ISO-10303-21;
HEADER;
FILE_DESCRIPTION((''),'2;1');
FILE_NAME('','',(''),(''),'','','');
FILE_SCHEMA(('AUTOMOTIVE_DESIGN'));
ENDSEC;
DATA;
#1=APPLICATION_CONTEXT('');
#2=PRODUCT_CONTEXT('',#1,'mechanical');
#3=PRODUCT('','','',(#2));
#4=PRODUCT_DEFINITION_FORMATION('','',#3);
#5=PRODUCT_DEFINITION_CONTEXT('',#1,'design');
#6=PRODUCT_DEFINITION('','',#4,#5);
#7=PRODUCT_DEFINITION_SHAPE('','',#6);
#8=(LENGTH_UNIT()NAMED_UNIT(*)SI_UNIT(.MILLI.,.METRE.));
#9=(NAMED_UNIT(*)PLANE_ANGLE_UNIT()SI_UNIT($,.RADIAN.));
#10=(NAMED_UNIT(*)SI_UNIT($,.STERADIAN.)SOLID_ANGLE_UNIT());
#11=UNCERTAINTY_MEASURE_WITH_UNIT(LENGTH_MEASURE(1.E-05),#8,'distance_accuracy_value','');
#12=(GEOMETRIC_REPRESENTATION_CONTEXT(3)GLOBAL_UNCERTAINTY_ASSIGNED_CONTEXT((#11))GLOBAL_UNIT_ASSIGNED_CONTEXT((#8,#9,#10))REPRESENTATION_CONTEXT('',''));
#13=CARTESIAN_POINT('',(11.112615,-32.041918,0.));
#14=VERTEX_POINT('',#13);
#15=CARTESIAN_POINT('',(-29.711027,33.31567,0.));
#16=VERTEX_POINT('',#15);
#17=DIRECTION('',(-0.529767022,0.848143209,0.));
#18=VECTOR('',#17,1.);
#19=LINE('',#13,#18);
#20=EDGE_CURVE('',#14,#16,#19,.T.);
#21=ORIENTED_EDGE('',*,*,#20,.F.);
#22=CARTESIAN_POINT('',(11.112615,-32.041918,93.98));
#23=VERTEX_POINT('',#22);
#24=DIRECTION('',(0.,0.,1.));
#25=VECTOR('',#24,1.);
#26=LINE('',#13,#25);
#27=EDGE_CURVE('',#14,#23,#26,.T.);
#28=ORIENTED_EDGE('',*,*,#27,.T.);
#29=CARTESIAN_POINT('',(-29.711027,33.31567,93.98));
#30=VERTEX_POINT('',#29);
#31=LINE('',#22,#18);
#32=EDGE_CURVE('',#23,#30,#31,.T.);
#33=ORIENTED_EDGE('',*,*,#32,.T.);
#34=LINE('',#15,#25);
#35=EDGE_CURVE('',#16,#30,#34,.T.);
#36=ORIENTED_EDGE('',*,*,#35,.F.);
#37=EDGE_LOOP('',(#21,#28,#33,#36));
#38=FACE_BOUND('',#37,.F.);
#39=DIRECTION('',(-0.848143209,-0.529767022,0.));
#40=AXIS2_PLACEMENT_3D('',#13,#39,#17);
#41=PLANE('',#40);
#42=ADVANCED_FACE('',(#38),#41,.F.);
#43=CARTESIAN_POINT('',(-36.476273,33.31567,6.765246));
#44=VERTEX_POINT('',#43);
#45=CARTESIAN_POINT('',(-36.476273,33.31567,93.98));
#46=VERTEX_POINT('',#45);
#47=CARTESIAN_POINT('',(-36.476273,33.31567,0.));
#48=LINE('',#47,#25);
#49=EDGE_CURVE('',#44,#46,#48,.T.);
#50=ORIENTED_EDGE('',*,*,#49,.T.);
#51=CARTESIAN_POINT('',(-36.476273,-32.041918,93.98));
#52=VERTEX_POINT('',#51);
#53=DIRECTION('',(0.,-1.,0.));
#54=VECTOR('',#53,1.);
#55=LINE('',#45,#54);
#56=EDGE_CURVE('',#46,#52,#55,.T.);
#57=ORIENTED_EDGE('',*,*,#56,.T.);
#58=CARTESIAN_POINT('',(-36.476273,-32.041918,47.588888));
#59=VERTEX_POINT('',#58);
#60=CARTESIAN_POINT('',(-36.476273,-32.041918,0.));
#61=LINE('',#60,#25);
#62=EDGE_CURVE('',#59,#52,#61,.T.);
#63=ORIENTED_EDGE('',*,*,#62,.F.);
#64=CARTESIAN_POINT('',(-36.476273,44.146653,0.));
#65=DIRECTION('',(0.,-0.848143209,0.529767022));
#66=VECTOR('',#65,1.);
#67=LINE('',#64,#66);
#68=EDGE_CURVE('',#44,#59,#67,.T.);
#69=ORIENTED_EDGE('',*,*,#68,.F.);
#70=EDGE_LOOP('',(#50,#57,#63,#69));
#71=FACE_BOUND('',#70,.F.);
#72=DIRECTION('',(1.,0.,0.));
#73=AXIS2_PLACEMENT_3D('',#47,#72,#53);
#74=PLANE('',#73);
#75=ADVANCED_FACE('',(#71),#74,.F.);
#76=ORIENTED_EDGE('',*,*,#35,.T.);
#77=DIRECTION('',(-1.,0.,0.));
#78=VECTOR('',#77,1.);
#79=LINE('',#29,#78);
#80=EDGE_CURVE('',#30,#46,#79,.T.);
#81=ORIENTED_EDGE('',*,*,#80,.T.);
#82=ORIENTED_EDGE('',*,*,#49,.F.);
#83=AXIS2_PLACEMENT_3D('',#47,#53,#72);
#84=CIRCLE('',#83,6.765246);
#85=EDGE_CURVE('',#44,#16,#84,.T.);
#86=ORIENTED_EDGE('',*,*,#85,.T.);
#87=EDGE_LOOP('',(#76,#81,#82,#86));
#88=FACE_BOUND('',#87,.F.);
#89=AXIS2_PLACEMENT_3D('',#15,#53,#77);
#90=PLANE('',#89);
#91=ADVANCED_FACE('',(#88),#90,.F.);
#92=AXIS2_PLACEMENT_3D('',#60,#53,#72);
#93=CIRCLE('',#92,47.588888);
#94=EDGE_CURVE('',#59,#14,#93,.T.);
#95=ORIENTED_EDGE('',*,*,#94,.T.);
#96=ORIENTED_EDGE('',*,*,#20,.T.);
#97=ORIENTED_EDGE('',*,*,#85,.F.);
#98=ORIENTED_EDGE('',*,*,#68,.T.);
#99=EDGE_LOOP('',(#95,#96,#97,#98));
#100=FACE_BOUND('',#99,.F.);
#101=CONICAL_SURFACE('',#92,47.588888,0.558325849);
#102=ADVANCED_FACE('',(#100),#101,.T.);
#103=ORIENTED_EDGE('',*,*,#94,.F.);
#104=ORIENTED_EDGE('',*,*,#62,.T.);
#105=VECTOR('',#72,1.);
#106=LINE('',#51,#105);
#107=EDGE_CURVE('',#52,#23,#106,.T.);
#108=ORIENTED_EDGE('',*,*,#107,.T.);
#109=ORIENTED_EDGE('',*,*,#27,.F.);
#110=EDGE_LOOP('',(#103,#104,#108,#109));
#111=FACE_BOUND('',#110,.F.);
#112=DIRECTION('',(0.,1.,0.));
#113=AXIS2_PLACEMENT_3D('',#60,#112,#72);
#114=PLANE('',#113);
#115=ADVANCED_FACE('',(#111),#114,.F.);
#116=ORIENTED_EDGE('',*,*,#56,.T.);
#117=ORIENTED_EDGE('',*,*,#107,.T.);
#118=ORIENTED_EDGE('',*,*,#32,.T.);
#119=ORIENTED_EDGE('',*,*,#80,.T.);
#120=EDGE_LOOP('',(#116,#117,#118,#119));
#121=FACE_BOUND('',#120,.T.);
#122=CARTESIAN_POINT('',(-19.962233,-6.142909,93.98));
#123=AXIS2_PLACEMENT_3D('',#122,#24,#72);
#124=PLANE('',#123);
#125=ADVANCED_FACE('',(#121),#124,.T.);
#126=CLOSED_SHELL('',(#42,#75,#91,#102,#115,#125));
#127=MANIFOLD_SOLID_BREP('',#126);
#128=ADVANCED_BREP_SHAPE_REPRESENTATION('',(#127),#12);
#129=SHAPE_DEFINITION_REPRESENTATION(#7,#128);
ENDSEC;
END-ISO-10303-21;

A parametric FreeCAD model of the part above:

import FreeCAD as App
import Part
import Sketcher
Q = App.Units.Quantity

doc = App.newDocument("Part")
params = doc.addObject("Spreadsheet::Sheet", "Params")
for row, (alias, value) in enumerate([
    ("revolution_angle", "360 deg"),
    ("pad1_length", "3.7 in"),
], start=1):
    params.set(f"A{row}", alias)
    params.set(f"B{row}", "=" + value)
    params.setAlias(f"B{row}", alias)

body = doc.addObject("PartDesign::Body", "Body")

sketch1 = doc.addObject("Sketcher::SketchObject", "Sketch")
body.addObject(sketch1)
sketch1.AttachmentSupport = (doc.XY_Plane, [""])
sketch1.MapMode = "FlatFace"
sketch1.addGeometry([
    Part.LineSegment(App.Vector(-30, 33, 0), App.Vector(-36, 33, 0)),
    Part.LineSegment(App.Vector(-36, 33, 0), App.Vector(-36, -32, 0)),
    Part.LineSegment(App.Vector(-36, -32, 0), App.Vector(11, -32, 0)),
    Part.LineSegment(App.Vector(11, -32, 0), App.Vector(-30, 33, 0)),
], False)
sketch1.addGeometry(Part.LineSegment(App.Vector(-36, 33, 0), App.Vector(-36, -32, 0)), True)
sketch1.addConstraint([
    Sketcher.Constraint("Coincident", 0, 2, 1, 1),
    Sketcher.Constraint("Coincident", 1, 2, 2, 1),
    Sketcher.Constraint("Coincident", 2, 2, 3, 1),
    Sketcher.Constraint("Coincident", 3, 2, 0, 1),
    Sketcher.Constraint("Horizontal", 0),
    Sketcher.Constraint("Vertical", 1),
    Sketcher.Constraint("Horizontal", 2),
    Sketcher.Constraint("Vertical", 4),
    Sketcher.Constraint("Coincident", 4, 1, 0, 2),
    Sketcher.Constraint("Horizontal", 2, 2, 4, 2),
    Sketcher.Constraint("DistanceX", 0, 2, 0, 1, Q("6.765246 mm")),
    Sketcher.Constraint("DistanceX", 2, 1, 2, 2, Q("47.588888 mm")),
    Sketcher.Constraint("DistanceY", 1, 2, 1, 1, Q("65.357588 mm")),
    Sketcher.Constraint("DistanceY", -1, 1, 0, 2, Q("33.31567 mm")),
    Sketcher.Constraint("DistanceX", 0, 2, -1, 1, Q("36.476273 mm")),
])
revolution = doc.addObject("PartDesign::Revolution", "Revolution")
body.addObject(revolution)
revolution.Profile = sketch1
revolution.ReferenceAxis = (sketch1, ["Axis0"])
revolution.setExpression("Angle", "Params.revolution_angle")

sketch2 = doc.addObject("Sketcher::SketchObject", "Sketch001")
body.addObject(sketch2)
sketch2.AttachmentSupport = (doc.XY_Plane, [""])
sketch2.MapMode = "FlatFace"
sketch2.addGeometry([
    Part.LineSegment(App.Vector(-30, 33, 0), App.Vector(-36, 33, 0)),
    Part.LineSegment(App.Vector(-36, 33, 0), App.Vector(-36, -32, 0)),
    Part.LineSegment(App.Vector(-36, -32, 0), App.Vector(11, -32, 0)),
    Part.LineSegment(App.Vector(11, -32, 0), App.Vector(-30, 33, 0)),
], False)
sketch2.addConstraint([
    Sketcher.Constraint("Coincident", 0, 2, 1, 1),
    Sketcher.Constraint("Coincident", 1, 2, 2, 1),
    Sketcher.Constraint("Coincident", 2, 2, 3, 1),
    Sketcher.Constraint("Coincident", 3, 2, 0, 1),
    Sketcher.Constraint("Horizontal", 0),
    Sketcher.Constraint("Vertical", 1),
    Sketcher.Constraint("Horizontal", 2),
    Sketcher.Constraint("DistanceX", 0, 2, 0, 1, Q("6.765246 mm")),
    Sketcher.Constraint("DistanceX", 2, 1, 2, 2, Q("47.588888 mm")),
    Sketcher.Constraint("DistanceY", 1, 2, 1, 1, Q("65.357588 mm")),
    Sketcher.Constraint("DistanceY", -1, 1, 0, 2, Q("33.31567 mm")),
    Sketcher.Constraint("DistanceX", 0, 2, -1, 1, Q("36.476273 mm")),
])
pad1 = doc.addObject("PartDesign::Pad", "Pad")
body.addObject(pad1)
pad1.Profile = sketch2
pad1.setExpression("Length", "Params.pad1_length")

doc.recompute()
